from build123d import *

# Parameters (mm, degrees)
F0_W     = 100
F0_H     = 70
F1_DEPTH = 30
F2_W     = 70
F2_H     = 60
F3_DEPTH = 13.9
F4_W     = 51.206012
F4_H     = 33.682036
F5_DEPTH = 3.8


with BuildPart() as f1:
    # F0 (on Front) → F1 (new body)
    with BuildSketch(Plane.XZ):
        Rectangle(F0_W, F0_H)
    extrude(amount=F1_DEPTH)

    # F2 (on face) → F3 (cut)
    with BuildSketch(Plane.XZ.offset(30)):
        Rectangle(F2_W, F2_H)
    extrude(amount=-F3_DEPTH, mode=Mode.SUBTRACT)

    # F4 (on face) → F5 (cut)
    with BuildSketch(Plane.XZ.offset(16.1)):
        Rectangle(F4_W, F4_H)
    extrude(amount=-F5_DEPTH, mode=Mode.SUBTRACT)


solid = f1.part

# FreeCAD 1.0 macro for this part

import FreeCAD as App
import Part
import Sketcher


def add_polygon(sketch, points):
    """Adds a closed chain of lines whose ends are joined by coincident constraints."""
    first, n = sketch.GeometryCount, len(points)
    for a, b in zip(points, points[1:] + points[:1]):
        sketch.addGeometry(Part.LineSegment(App.Vector(*a, 0), App.Vector(*b, 0)), False)
    for i in range(n):
        sketch.addConstraint(Sketcher.Constraint("Coincident", first + i, 2, first + (i + 1) % n, 1))

doc = App.newDocument("Part")
params = doc.addObject("Spreadsheet::Sheet", "Params")
for row, (alias, value) in enumerate([
    ("sketch1_width", "100 mm"),
    ("sketch1_height", "70 mm"),
    ("pad1_length", "30 mm"),
    ("sketch2_width", "70 mm"),
    ("sketch2_height", "60 mm"),
    ("pocket1_length", "13.9 mm"),
    ("pocket2_length", "3.8 mm"),
], start=1):
    params.set(f"A{row}", alias)
    params.set(f"B{row}", "=" + value)
    params.setAlias(f"B{row}", alias)

body = doc.addObject("PartDesign::Body", "Body")

sketch1 = body.newObject("Sketcher::SketchObject", "Sketch")
sketch1.AttachmentSupport = (doc.getObject("XZ_Plane"), [""])
sketch1.MapMode = "FlatFace"
add_polygon(sketch1, [(-50, 35), (-50, -35), (50, -35), (50, 35)])
sketch1.addConstraint(Sketcher.Constraint("Vertical", 0))
sketch1.addConstraint(Sketcher.Constraint("Horizontal", 1))
sketch1.addConstraint(Sketcher.Constraint("Vertical", 2))
sketch1.addConstraint(Sketcher.Constraint("Horizontal", 3))
sketch1.addConstraint(Sketcher.Constraint("Symmetric", 0, 2, 2, 2, -1, 1))
sketch1.addConstraint(Sketcher.Constraint("DistanceX", 1, 1, 1, 2, 100.0))
sketch1.addConstraint(Sketcher.Constraint("DistanceY", 0, 2, 0, 1, 70.0))
sketch1.setExpression("Constraints[9]", "Params.sketch1_width")
sketch1.setExpression("Constraints[10]", "Params.sketch1_height")
pad1 = body.newObject("PartDesign::Pad", "Pad")
pad1.Profile = sketch1
pad1.setExpression("Length", "Params.pad1_length")

sketch2 = body.newObject("Sketcher::SketchObject", "Sketch001")
sketch2.AttachmentSupport = (doc.getObject("XZ_Plane"), [""])
sketch2.MapMode = "FlatFace"
sketch2.AttachmentOffset = App.Placement(App.Vector(0, 0, 30), App.Rotation())
add_polygon(sketch2, [(-35, 30), (-35, -30), (35, -30), (35, 30)])
sketch2.addConstraint(Sketcher.Constraint("Vertical", 0))
sketch2.addConstraint(Sketcher.Constraint("Horizontal", 1))
sketch2.addConstraint(Sketcher.Constraint("Vertical", 2))
sketch2.addConstraint(Sketcher.Constraint("Horizontal", 3))
sketch2.addConstraint(Sketcher.Constraint("Symmetric", 0, 2, 2, 2, -1, 1))
sketch2.addConstraint(Sketcher.Constraint("DistanceX", 1, 1, 1, 2, 70.0))
sketch2.addConstraint(Sketcher.Constraint("DistanceY", 0, 2, 0, 1, 60.0))
sketch2.setExpression("Constraints[9]", "Params.sketch2_width")
sketch2.setExpression("Constraints[10]", "Params.sketch2_height")
pocket1 = body.newObject("PartDesign::Pocket", "Pocket")
pocket1.Profile = sketch2
pocket1.setExpression("Length", "Params.pocket1_length")

sketch3 = body.newObject("Sketcher::SketchObject", "Sketch002")
sketch3.AttachmentSupport = (doc.getObject("XZ_Plane"), [""])
sketch3.MapMode = "FlatFace"
sketch3.AttachmentOffset = App.Placement(App.Vector(0, 0, 16.1), App.Rotation())
add_polygon(sketch3, [(-26, 17), (-26, -17), (26, -17), (26, 17)])
sketch3.addConstraint(Sketcher.Constraint("Vertical", 0))
sketch3.addConstraint(Sketcher.Constraint("Horizontal", 1))
sketch3.addConstraint(Sketcher.Constraint("Vertical", 2))
sketch3.addConstraint(Sketcher.Constraint("Horizontal", 3))
sketch3.addConstraint(Sketcher.Constraint("Symmetric", 0, 2, 2, 2, -1, 1))
sketch3.addConstraint(Sketcher.Constraint("DistanceX", 1, 1, 1, 2, 51.206012))
sketch3.addConstraint(Sketcher.Constraint("DistanceY", 0, 2, 0, 1, 33.682036))
pocket2 = body.newObject("PartDesign::Pocket", "Pocket001")
pocket2.Profile = sketch3
pocket2.setExpression("Length", "Params.pocket2_length")

doc.recompute()
